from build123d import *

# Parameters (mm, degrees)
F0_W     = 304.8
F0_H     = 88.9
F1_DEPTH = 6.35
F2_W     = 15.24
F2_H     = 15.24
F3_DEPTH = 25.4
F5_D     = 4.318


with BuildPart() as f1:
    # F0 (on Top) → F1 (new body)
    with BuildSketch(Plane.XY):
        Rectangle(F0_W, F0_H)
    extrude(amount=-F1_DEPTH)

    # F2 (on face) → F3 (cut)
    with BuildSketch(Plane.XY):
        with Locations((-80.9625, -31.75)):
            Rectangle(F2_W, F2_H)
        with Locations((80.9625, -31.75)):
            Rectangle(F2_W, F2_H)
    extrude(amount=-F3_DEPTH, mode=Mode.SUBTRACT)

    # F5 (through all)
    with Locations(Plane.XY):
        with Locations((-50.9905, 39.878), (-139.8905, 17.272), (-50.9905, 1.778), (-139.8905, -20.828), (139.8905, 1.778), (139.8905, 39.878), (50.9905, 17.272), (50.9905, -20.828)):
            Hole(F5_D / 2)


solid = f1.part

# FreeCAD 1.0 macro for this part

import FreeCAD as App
import Part
import Sketcher
Q = App.Units.Quantity


def add_polygon(sketch, points):
    """Adds a closed chain of lines whose ends are joined by coincident constraints."""
    first, n = sketch.GeometryCount, len(points)
    for a, b in zip(points, points[1:] + points[:1]):
        sketch.addGeometry(Part.LineSegment(App.Vector(*a, 0), App.Vector(*b, 0)), False)
    for i in range(n):
        sketch.addConstraint(Sketcher.Constraint("Coincident", first + i, 2, first + (i + 1) % n, 1))

doc = App.newDocument("Part")
params = doc.addObject("Spreadsheet::Sheet", "Params")
for row, (alias, value) in enumerate([
    ("sketch1_width", "12 in"),
    ("sketch1_height", "3.5 in"),
    ("pad1_length", "0.25 in"),
    ("sketch2_width", "0.6 in"),
    ("pocket1_length", "1 in"),
    ("sketch3_diameter", "0.17 in"),
    ("hole_diameter", "0.17 in"),
], start=1):
    params.set(f"A{row}", alias)
    params.set(f"B{row}", "=" + value)
    params.setAlias(f"B{row}", alias)

body = doc.addObject("PartDesign::Body", "Body")

# Sketch on XY plane
sketch1 = body.newObject("Sketcher::SketchObject", "Sketch")
sketch1.AttachmentSupport = (doc.getObject("XY_Plane"), [""])
sketch1.MapMode = "FlatFace"
add_polygon(sketch1, [(-152.4, 44.45), (-152.4, -44.45), (152.4, -44.45), (152.4, 44.45)])  # lines 0-3
sketch1.addConstraint(Sketcher.Constraint("Vertical", 0))
sketch1.addConstraint(Sketcher.Constraint("Horizontal", 1))
sketch1.addConstraint(Sketcher.Constraint("Vertical", 2))
sketch1.addConstraint(Sketcher.Constraint("Horizontal", 3))
sketch1.addConstraint(Sketcher.Constraint("Symmetric", 0, 2, 2, 2, -1, 1))
sketch1.addConstraint(Sketcher.Constraint("DistanceX", 1, 1, 1, 2, Q("12 in")))
sketch1.addConstraint(Sketcher.Constraint("DistanceY", 0, 2, 0, 1, Q("3.5 in")))
sketch1.setExpression("Constraints[9]", "Params.sketch1_width")
sketch1.setExpression("Constraints[10]", "Params.sketch1_height")
pad1 = body.newObject("PartDesign::Pad", "Pad")
pad1.Profile = sketch1
pad1.setExpression("Length", "Params.pad1_length")
pad1.Reversed = True

# Sketch on XY plane
sketch2 = body.newObject("Sketcher::SketchObject", "Sketch001")
sketch2.AttachmentSupport = (doc.getObject("XY_Plane"), [""])
sketch2.MapMode = "FlatFace"
add_polygon(sketch2, [(-88.5825, -24.13), (-88.5825, -39.37), (-73.3425, -39.37), (-73.3425, -24.13)])  # lines 0-3
add_polygon(sketch2, [(73.3425, -24.13), (73.3425, -39.37), (88.5825, -39.37), (88.5825, -24.13)])  # lines 4-7
sketch2.addConstraint(Sketcher.Constraint("Vertical", 0))
sketch2.addConstraint(Sketcher.Constraint("Horizontal", 1))
sketch2.addConstraint(Sketcher.Constraint("Vertical", 2))
sketch2.addConstraint(Sketcher.Constraint("Horizontal", 3))
sketch2.addConstraint(Sketcher.Constraint("Vertical", 4))
sketch2.addConstraint(Sketcher.Constraint("Horizontal", 5))
sketch2.addConstraint(Sketcher.Constraint("Vertical", 6))
sketch2.addConstraint(Sketcher.Constraint("Horizontal", 7))
sketch2.addConstraint(Sketcher.Constraint("Symmetric", 1, 2, 4, 2, -2))
sketch2.addConstraint(Sketcher.Constraint("Symmetric", 3, 2, 6, 2, -2))
sketch2.addConstraint(Sketcher.Constraint("Equal", 7, 0))
sketch2.addConstraint(Sketcher.Constraint("DistanceX", 1, 1, 1, 2, Q("0.6 in")))
sketch2.addConstraint(Sketcher.Constraint("DistanceY", 0, 2, -1, 1, Q("1.55 in")))
sketch2.addConstraint(Sketcher.Constraint("DistanceX", 1, 2, 4, 2, Q("5.775 in")))
sketch2.setExpression("Constraints[19]", "Params.sketch2_width")
pocket1 = body.newObject("PartDesign::Pocket", "Pocket")
pocket1.Profile = sketch2
pocket1.setExpression("Length", "Params.pocket1_length")

# Sketch on XY plane
sketch3 = body.newObject("Sketcher::SketchObject", "Sketch002")
sketch3.AttachmentSupport = (doc.getObject("XY_Plane"), [""])
sketch3.MapMode = "FlatFace"
sketch3.addGeometry(Part.Circle(App.Vector(-50.9905, 39.878, 0), App.Vector(0, 0, 1), 2.159), False)
sketch3.addGeometry(Part.Circle(App.Vector(-139.8905, 17.272, 0), App.Vector(0, 0, 1), 2.159), False)
sketch3.addGeometry(Part.Circle(App.Vector(-50.9905, 1.778, 0), App.Vector(0, 0, 1), 2.159), False)
sketch3.addGeometry(Part.Circle(App.Vector(-139.8905, -20.828, 0), App.Vector(0, 0, 1), 2.159), False)
sketch3.addGeometry(Part.Circle(App.Vector(139.8905, 1.778, 0), App.Vector(0, 0, 1), 2.159), False)
sketch3.addGeometry(Part.Circle(App.Vector(139.8905, 39.878, 0), App.Vector(0, 0, 1), 2.159), False)
sketch3.addGeometry(Part.Circle(App.Vector(50.9905, 17.272, 0), App.Vector(0, 0, 1), 2.159), False)
sketch3.addGeometry(Part.Circle(App.Vector(50.9905, -20.828, 0), App.Vector(0, 0, 1), 2.159), False)
sketch3.addConstraint(Sketcher.Constraint("Equal", 0, 1))
sketch3.addConstraint(Sketcher.Constraint("Equal", 1, 2))
sketch3.addConstraint(Sketcher.Constraint("Equal", 2, 3))
sketch3.addConstraint(Sketcher.Constraint("Equal", 3, 4))
sketch3.addConstraint(Sketcher.Constraint("Equal", 4, 5))
sketch3.addConstraint(Sketcher.Constraint("Equal", 5, 6))
sketch3.addConstraint(Sketcher.Constraint("Equal", 6, 7))
sketch3.addConstraint(Sketcher.Constraint("Horizontal", 2, 3, 4, 3))
sketch3.addConstraint(Sketcher.Constraint("Horizontal", 0, 3, 5, 3))
sketch3.addConstraint(Sketcher.Constraint("Horizontal", 1, 3, 6, 3))
sketch3.addConstraint(Sketcher.Constraint("Horizontal", 3, 3, 7, 3))
sketch3.addConstraint(Sketcher.Constraint("Vertical", 0, 3, 2, 3))
sketch3.addConstraint(Sketcher.Constraint("Vertical", 1, 3, 3, 3))
sketch3.addConstraint(Sketcher.Constraint("Vertical", 4, 3, 5, 3))
sketch3.addConstraint(Sketcher.Constraint("Vertical", 6, 3, 7, 3))
sketch3.addConstraint(Sketcher.Constraint("Diameter", 0, Q("0.17 in")))
sketch3.addConstraint(Sketcher.Constraint("DistanceX", 1, 3, 0, 3, Q("3.5 in")))
sketch3.addConstraint(Sketcher.Constraint("DistanceY", 2, 3, 0, 3, Q("1.5 in")))
sketch3.addConstraint(Sketcher.Constraint("DistanceY", 3, 3, 1, 3, Q("1.5 in")))
sketch3.addConstraint(Sketcher.Constraint("DistanceX", 6, 3, 4, 3, Q("3.5 in")))
sketch3.addConstraint(Sketcher.Constraint("DistanceY", -1, 1, 0, 3, Q("1.57 in")))
sketch3.addConstraint(Sketcher.Constraint("DistanceY", -1, 1, 1, 3, Q("0.68 in")))
sketch3.addConstraint(Sketcher.Constraint("DistanceX", 2, 3, 4, 3, Q("7.515 in")))
sketch3.addConstraint(Sketcher.Constraint("DistanceX", 0, 3, -1, 1, Q("2.0075 in")))
sketch3.setExpression("Constraints[15]", "Params.sketch3_diameter")
doc.recompute()
hole = body.newObject("PartDesign::Hole", "Hole")
hole.Profile = sketch3
hole.ThreadType = "None"
hole.setExpression("Diameter", "Params.hole_diameter")
hole.DepthType = "ThroughAll"

doc.recompute()
